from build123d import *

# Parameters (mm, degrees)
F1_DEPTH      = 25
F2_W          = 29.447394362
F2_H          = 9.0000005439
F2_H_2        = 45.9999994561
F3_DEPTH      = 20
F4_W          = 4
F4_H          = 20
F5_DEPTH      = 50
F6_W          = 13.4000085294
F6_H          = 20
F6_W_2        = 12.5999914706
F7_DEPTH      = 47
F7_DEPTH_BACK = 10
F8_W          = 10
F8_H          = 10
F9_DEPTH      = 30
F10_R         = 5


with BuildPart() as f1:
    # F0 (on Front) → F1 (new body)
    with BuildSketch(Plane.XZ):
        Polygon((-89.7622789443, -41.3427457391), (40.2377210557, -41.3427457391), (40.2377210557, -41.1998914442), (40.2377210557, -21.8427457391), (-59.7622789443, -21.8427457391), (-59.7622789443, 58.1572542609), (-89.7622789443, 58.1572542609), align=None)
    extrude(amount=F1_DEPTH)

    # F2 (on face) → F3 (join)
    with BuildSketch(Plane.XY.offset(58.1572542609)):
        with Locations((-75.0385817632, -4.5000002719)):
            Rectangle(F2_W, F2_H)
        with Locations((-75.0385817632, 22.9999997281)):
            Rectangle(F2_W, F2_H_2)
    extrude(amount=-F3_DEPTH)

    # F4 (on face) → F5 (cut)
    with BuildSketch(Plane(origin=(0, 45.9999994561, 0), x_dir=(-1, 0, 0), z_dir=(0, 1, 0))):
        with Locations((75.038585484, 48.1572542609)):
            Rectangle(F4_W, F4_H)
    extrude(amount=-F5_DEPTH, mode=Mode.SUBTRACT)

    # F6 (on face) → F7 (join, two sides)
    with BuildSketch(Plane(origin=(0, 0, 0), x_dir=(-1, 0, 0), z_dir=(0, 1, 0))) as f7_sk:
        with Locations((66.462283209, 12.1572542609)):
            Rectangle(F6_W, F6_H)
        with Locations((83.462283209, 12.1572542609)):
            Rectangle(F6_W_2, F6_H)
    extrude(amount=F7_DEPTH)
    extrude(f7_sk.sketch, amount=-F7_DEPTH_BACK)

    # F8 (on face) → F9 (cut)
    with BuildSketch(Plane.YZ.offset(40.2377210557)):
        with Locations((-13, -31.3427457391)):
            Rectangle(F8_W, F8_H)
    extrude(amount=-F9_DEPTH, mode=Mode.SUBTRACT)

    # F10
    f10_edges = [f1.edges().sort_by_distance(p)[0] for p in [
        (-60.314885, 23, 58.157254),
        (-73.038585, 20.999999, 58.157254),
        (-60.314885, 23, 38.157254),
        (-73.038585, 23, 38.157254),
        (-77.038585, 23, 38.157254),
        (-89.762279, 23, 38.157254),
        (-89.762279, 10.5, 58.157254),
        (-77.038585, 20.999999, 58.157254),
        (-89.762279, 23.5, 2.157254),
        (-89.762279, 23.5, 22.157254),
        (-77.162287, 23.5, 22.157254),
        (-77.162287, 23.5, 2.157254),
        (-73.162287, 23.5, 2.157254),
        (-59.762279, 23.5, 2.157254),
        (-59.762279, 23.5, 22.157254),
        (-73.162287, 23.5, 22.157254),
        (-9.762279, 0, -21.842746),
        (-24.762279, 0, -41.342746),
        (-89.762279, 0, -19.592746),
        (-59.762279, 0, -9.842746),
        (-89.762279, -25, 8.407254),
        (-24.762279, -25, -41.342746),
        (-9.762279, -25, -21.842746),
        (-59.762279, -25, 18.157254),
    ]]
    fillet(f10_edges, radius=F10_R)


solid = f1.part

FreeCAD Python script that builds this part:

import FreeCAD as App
import Part
import Sketcher
from FreeCAD import Vector
Q = App.Units.Quantity


def edges_at(feature, points):
    """Names of the edges that pass closest to the given points."""
    edges = feature.Shape.Edges
    near = lambda p: min(range(len(edges)), key=lambda i: edges[i].distToShape(Part.Vertex(*p))[0])
    return sorted({f"Edge{near(p) + 1}" for p in points})

doc = App.newDocument("Part")
body = doc.addObject("PartDesign::Body", "Body")

# Sketch on XZ plane
sketch1 = body.newObject("Sketcher::SketchObject", "Sketch")
sketch1.AttachmentSupport = (doc.getObject("XZ_Plane"), [""])
sketch1.MapMode = "FlatFace"
sketch1.addGeometry([
    Part.LineSegment(Vector(-90, -41, 0), Vector(40, -41, 0)),  # 0
    Part.LineSegment(Vector(40, -41, 0), Vector(40, -22, 0)),  # 1
    Part.LineSegment(Vector(40, -22, 0), Vector(-60, -22, 0)),  # 2
    Part.LineSegment(Vector(-60, -22, 0), Vector(-60, 58, 0)),  # 3
    Part.LineSegment(Vector(-60, 58, 0), Vector(-90, 58, 0)),  # 4
    Part.LineSegment(Vector(-90, 58, 0), Vector(-90, -41, 0)),  # 5
], False)
sketch1.addConstraint([
    Sketcher.Constraint("Coincident", 0, 2, 1, 1),
    Sketcher.Constraint("Coincident", 1, 2, 2, 1),
    Sketcher.Constraint("Coincident", 2, 2, 3, 1),
    Sketcher.Constraint("Coincident", 3, 2, 4, 1),
    Sketcher.Constraint("Coincident", 4, 2, 5, 1),
    Sketcher.Constraint("Coincident", 5, 2, 0, 1),
    Sketcher.Constraint("Horizontal", 0),
    Sketcher.Constraint("Vertical", 1),
    Sketcher.Constraint("Horizontal", 2),
    Sketcher.Constraint("Vertical", 3),
    Sketcher.Constraint("Horizontal", 4),
    Sketcher.Constraint("Vertical", 5),
    Sketcher.Constraint("DistanceX", 0, 1, 0, 2, Q("130 mm")),
    Sketcher.Constraint("DistanceX", 2, 2, 2, 1, Q("100 mm")),
    Sketcher.Constraint("DistanceY", 3, 1, 3, 2, Q("80 mm")),
    Sketcher.Constraint("DistanceY", 1, 1, 1, 2, Q("19.5 mm")),
    Sketcher.Constraint("DistanceX", -1, 1, 0, 2, Q("40.237721 mm")),
    Sketcher.Constraint("DistanceY", 0, 2, -1, 1, Q("41.342746 mm")),
])
pad1 = body.newObject("PartDesign::Pad", "Pad")
pad1.Profile = sketch1
pad1.Length = 25

# Sketch on XY plane
sketch2 = body.newObject("Sketcher::SketchObject", "Sketch001")
sketch2.AttachmentSupport = (doc.getObject("XY_Plane"), [""])
sketch2.MapMode = "FlatFace"
sketch2.AttachmentOffset = App.Placement(Vector(0, 0, 58.157254), App.Rotation())
sketch2.addGeometry([
    Part.LineSegment(Vector(-90, -9, 0), Vector(-60, -9, 0)),
    Part.LineSegment(Vector(-60, -9, 0), Vector(-60, 46, 0)),
    Part.LineSegment(Vector(-60, 46, 0), Vector(-90, 46, 0)),
    Part.LineSegment(Vector(-90, 46, 0), Vector(-90, -9, 0)),
], False)
sketch2.addConstraint([
    Sketcher.Constraint("Coincident", 0, 2, 1, 1),
    Sketcher.Constraint("Coincident", 1, 2, 2, 1),
    Sketcher.Constraint("Coincident", 2, 2, 3, 1),
    Sketcher.Constraint("Coincident", 3, 2, 0, 1),
    Sketcher.Constraint("Horizontal", 0),
    Sketcher.Constraint("Vertical", 1),
    Sketcher.Constraint("Horizontal", 2),
    Sketcher.Constraint("Vertical", 3),
    Sketcher.Constraint("DistanceY", 1, 1, 1, 2, Q("55 mm")),
    Sketcher.Constraint("DistanceY", 0, 2, -1, 1, Q("9.000001 mm")),
    Sketcher.Constraint("DistanceX", 0, 1, 0, 2, Q("29.447394 mm")),
    Sketcher.Constraint("DistanceX", 2, 2, -1, 1, Q("89.762279 mm")),
])
pad2 = body.newObject("PartDesign::Pad", "Pad001")
pad2.Profile = sketch2
pad2.Length = 20
pad2.Reversed = True

# Sketch on XZ plane
sketch3 = body.newObject("Sketcher::SketchObject", "Sketch002")
sketch3.AttachmentSupport = (doc.getObject("XZ_Plane"), [""])
sketch3.MapMode = "FlatFace"
sketch3.AttachmentOffset = App.Placement(Vector(0, 0, -45.999999), App.Rotation())
sketch3.addGeometry([
    Part.LineSegment(Vector(-73, 58.2, 0), Vector(-73, 38.2, 0)),
    Part.LineSegment(Vector(-73, 38.2, 0), Vector(-77, 38.2, 0)),
    Part.LineSegment(Vector(-77, 38.2, 0), Vector(-77, 58.2, 0)),
    Part.LineSegment(Vector(-77, 58.2, 0), Vector(-73, 58.2, 0)),
], False)
sketch3.addConstraint([
    Sketcher.Constraint("Coincident", 0, 2, 1, 1),
    Sketcher.Constraint("Coincident", 1, 2, 2, 1),
    Sketcher.Constraint("Coincident", 2, 2, 3, 1),
    Sketcher.Constraint("Coincident", 3, 2, 0, 1),
    Sketcher.Constraint("Vertical", 0),
    Sketcher.Constraint("Horizontal", 1),
    Sketcher.Constraint("Vertical", 2),
    Sketcher.Constraint("Horizontal", 3),
    Sketcher.Constraint("DistanceX", 1, 2, 1, 1, Q("4 mm")),
    Sketcher.Constraint("DistanceY", 0, 2, 0, 1, Q("20 mm")),
    Sketcher.Constraint("DistanceX", 0, 2, -1, 1, Q("73.038585 mm")),
    Sketcher.Constraint("DistanceY", -1, 1, 0, 2, Q("38.157254 mm")),
])
pocket1 = body.newObject("PartDesign::Pocket", "Pocket")
pocket1.Profile = sketch3
pocket1.Length = 50
pocket1.Reversed = True

# Sketch on XZ plane
sketch4 = body.newObject("Sketcher::SketchObject", "Sketch003")
sketch4.AttachmentSupport = (doc.getObject("XZ_Plane"), [""])
sketch4.MapMode = "FlatFace"
sketch4.addGeometry([
    Part.LineSegment(Vector(-60, 22, 0), Vector(-60, 2, 0)),  # 0
    Part.LineSegment(Vector(-60, 2, 0), Vector(-73, 2, 0)),  # 1
    Part.LineSegment(Vector(-73, 2, 0), Vector(-73, 22, 0)),  # 2
    Part.LineSegment(Vector(-73, 22, 0), Vector(-60, 22, 0)),  # 3
    Part.LineSegment(Vector(-77, 22, 0), Vector(-77, 2, 0)),  # 4
    Part.LineSegment(Vector(-77, 2, 0), Vector(-90, 2, 0)),  # 5
    Part.LineSegment(Vector(-90, 2, 0), Vector(-90, 22, 0)),  # 6
    Part.LineSegment(Vector(-90, 22, 0), Vector(-77, 22, 0)),  # 7
], False)
sketch4.addConstraint([
    Sketcher.Constraint("Coincident", 0, 2, 1, 1),
    Sketcher.Constraint("Coincident", 1, 2, 2, 1),
    Sketcher.Constraint("Coincident", 2, 2, 3, 1),
    Sketcher.Constraint("Coincident", 3, 2, 0, 1),
    Sketcher.Constraint("Coincident", 4, 2, 5, 1),
    Sketcher.Constraint("Coincident", 5, 2, 6, 1),
    Sketcher.Constraint("Coincident", 6, 2, 7, 1),
    Sketcher.Constraint("Coincident", 7, 2, 4, 1),
    Sketcher.Constraint("Vertical", 0),
    Sketcher.Constraint("Horizontal", 1),
    Sketcher.Constraint("Vertical", 2),
    Sketcher.Constraint("Horizontal", 3),
    Sketcher.Constraint("Vertical", 4),
    Sketcher.Constraint("Horizontal", 5),
    Sketcher.Constraint("Vertical", 6),
    Sketcher.Constraint("Horizontal", 7),
    Sketcher.Constraint("Horizontal", 1, 2, 4, 2),
    Sketcher.Constraint("Horizontal", 3, 2, 6, 2),
    Sketcher.Constraint("DistanceY", 0, 2, 0, 1, Q("20 mm")),
    Sketcher.Constraint("DistanceX", 4, 2, 1, 2, Q("4 mm")),
    Sketcher.Constraint("DistanceX", 5, 2, 0, 2, Q("30 mm")),
    Sketcher.Constraint("DistanceX", 1, 2, 1, 1, Q("13.400009 mm")),
    Sketcher.Constraint("DistanceX", 0, 2, -1, 1, Q("59.762279 mm")),
    Sketcher.Constraint("DistanceY", -1, 1, 0, 2, Q("2.157254 mm")),
])
pad3 = body.newObject("PartDesign::Pad", "Pad002")
pad3.Profile = sketch4
pad3.Type = "TwoLengths"
pad3.Length = 47
pad3.Length2 = 10
pad3.Reversed = True

# Sketch on YZ plane
sketch5 = body.newObject("Sketcher::SketchObject", "Sketch004")
sketch5.AttachmentSupport = (doc.getObject("YZ_Plane"), [""])
sketch5.MapMode = "FlatFace"
sketch5.AttachmentOffset = App.Placement(Vector(0, 0, 40.237721), App.Rotation())
sketch5.addGeometry([
    Part.LineSegment(Vector(-18, -26, 0), Vector(-18, -36, 0)),
    Part.LineSegment(Vector(-18, -36, 0), Vector(-8, -36, 0)),
    Part.LineSegment(Vector(-8, -36, 0), Vector(-8, -26, 0)),
    Part.LineSegment(Vector(-8, -26, 0), Vector(-18, -26, 0)),
], False)
sketch5.addConstraint([
    Sketcher.Constraint("Coincident", 0, 2, 1, 1),
    Sketcher.Constraint("Coincident", 1, 2, 2, 1),
    Sketcher.Constraint("Coincident", 2, 2, 3, 1),
    Sketcher.Constraint("Coincident", 3, 2, 0, 1),
    Sketcher.Constraint("Vertical", 0),
    Sketcher.Constraint("Horizontal", 1),
    Sketcher.Constraint("Vertical", 2),
    Sketcher.Constraint("Horizontal", 3),
    Sketcher.Constraint("Equal", 3, 0),
    Sketcher.Constraint("DistanceX", 1, 1, 1, 2, Q("10 mm")),
    Sketcher.Constraint("DistanceX", 0, 2, -1, 1, Q("18 mm")),
    Sketcher.Constraint("DistanceY", 0, 2, -1, 1, Q("36.342746 mm")),
])
pocket2 = body.newObject("PartDesign::Pocket", "Pocket001")
pocket2.Profile = sketch5
pocket2.Length = 30
doc.recompute()

fillet = body.newObject("PartDesign::Fillet", "Fillet")
fillet.Base = (pocket2, edges_at(pocket2, [
    (-60.315, 23, 58.157),
    (-73.039, 21, 58.157),
    (-60.315, 23, 38.157),
    (-73.039, 23, 38.157),
    (-77.039, 23, 38.157),
    (-89.762, 23, 38.157),
    (-89.762, 10.5, 58.157),
    (-77.039, 21, 58.157),
    (-89.762, 23.5, 2.157),
    (-89.762, 23.5, 22.157),
    (-77.162, 23.5, 22.157),
    (-77.162, 23.5, 2.157),
    (-73.162, 23.5, 2.157),
    (-59.762, 23.5, 2.157),
    (-59.762, 23.5, 22.157),
    (-73.162, 23.5, 22.157),
    (-9.762, 0, -21.843),
    (-24.762, 0, -41.343),
    (-89.762, 0, -19.593),
    (-59.762, 0, -9.843),
    (-89.762, -25, 8.407),
    (-24.762, -25, -41.343),
    (-9.762, -25, -21.843),
    (-59.762, -25, 18.157),
]))
fillet.Radius = 5

doc.recompute()
